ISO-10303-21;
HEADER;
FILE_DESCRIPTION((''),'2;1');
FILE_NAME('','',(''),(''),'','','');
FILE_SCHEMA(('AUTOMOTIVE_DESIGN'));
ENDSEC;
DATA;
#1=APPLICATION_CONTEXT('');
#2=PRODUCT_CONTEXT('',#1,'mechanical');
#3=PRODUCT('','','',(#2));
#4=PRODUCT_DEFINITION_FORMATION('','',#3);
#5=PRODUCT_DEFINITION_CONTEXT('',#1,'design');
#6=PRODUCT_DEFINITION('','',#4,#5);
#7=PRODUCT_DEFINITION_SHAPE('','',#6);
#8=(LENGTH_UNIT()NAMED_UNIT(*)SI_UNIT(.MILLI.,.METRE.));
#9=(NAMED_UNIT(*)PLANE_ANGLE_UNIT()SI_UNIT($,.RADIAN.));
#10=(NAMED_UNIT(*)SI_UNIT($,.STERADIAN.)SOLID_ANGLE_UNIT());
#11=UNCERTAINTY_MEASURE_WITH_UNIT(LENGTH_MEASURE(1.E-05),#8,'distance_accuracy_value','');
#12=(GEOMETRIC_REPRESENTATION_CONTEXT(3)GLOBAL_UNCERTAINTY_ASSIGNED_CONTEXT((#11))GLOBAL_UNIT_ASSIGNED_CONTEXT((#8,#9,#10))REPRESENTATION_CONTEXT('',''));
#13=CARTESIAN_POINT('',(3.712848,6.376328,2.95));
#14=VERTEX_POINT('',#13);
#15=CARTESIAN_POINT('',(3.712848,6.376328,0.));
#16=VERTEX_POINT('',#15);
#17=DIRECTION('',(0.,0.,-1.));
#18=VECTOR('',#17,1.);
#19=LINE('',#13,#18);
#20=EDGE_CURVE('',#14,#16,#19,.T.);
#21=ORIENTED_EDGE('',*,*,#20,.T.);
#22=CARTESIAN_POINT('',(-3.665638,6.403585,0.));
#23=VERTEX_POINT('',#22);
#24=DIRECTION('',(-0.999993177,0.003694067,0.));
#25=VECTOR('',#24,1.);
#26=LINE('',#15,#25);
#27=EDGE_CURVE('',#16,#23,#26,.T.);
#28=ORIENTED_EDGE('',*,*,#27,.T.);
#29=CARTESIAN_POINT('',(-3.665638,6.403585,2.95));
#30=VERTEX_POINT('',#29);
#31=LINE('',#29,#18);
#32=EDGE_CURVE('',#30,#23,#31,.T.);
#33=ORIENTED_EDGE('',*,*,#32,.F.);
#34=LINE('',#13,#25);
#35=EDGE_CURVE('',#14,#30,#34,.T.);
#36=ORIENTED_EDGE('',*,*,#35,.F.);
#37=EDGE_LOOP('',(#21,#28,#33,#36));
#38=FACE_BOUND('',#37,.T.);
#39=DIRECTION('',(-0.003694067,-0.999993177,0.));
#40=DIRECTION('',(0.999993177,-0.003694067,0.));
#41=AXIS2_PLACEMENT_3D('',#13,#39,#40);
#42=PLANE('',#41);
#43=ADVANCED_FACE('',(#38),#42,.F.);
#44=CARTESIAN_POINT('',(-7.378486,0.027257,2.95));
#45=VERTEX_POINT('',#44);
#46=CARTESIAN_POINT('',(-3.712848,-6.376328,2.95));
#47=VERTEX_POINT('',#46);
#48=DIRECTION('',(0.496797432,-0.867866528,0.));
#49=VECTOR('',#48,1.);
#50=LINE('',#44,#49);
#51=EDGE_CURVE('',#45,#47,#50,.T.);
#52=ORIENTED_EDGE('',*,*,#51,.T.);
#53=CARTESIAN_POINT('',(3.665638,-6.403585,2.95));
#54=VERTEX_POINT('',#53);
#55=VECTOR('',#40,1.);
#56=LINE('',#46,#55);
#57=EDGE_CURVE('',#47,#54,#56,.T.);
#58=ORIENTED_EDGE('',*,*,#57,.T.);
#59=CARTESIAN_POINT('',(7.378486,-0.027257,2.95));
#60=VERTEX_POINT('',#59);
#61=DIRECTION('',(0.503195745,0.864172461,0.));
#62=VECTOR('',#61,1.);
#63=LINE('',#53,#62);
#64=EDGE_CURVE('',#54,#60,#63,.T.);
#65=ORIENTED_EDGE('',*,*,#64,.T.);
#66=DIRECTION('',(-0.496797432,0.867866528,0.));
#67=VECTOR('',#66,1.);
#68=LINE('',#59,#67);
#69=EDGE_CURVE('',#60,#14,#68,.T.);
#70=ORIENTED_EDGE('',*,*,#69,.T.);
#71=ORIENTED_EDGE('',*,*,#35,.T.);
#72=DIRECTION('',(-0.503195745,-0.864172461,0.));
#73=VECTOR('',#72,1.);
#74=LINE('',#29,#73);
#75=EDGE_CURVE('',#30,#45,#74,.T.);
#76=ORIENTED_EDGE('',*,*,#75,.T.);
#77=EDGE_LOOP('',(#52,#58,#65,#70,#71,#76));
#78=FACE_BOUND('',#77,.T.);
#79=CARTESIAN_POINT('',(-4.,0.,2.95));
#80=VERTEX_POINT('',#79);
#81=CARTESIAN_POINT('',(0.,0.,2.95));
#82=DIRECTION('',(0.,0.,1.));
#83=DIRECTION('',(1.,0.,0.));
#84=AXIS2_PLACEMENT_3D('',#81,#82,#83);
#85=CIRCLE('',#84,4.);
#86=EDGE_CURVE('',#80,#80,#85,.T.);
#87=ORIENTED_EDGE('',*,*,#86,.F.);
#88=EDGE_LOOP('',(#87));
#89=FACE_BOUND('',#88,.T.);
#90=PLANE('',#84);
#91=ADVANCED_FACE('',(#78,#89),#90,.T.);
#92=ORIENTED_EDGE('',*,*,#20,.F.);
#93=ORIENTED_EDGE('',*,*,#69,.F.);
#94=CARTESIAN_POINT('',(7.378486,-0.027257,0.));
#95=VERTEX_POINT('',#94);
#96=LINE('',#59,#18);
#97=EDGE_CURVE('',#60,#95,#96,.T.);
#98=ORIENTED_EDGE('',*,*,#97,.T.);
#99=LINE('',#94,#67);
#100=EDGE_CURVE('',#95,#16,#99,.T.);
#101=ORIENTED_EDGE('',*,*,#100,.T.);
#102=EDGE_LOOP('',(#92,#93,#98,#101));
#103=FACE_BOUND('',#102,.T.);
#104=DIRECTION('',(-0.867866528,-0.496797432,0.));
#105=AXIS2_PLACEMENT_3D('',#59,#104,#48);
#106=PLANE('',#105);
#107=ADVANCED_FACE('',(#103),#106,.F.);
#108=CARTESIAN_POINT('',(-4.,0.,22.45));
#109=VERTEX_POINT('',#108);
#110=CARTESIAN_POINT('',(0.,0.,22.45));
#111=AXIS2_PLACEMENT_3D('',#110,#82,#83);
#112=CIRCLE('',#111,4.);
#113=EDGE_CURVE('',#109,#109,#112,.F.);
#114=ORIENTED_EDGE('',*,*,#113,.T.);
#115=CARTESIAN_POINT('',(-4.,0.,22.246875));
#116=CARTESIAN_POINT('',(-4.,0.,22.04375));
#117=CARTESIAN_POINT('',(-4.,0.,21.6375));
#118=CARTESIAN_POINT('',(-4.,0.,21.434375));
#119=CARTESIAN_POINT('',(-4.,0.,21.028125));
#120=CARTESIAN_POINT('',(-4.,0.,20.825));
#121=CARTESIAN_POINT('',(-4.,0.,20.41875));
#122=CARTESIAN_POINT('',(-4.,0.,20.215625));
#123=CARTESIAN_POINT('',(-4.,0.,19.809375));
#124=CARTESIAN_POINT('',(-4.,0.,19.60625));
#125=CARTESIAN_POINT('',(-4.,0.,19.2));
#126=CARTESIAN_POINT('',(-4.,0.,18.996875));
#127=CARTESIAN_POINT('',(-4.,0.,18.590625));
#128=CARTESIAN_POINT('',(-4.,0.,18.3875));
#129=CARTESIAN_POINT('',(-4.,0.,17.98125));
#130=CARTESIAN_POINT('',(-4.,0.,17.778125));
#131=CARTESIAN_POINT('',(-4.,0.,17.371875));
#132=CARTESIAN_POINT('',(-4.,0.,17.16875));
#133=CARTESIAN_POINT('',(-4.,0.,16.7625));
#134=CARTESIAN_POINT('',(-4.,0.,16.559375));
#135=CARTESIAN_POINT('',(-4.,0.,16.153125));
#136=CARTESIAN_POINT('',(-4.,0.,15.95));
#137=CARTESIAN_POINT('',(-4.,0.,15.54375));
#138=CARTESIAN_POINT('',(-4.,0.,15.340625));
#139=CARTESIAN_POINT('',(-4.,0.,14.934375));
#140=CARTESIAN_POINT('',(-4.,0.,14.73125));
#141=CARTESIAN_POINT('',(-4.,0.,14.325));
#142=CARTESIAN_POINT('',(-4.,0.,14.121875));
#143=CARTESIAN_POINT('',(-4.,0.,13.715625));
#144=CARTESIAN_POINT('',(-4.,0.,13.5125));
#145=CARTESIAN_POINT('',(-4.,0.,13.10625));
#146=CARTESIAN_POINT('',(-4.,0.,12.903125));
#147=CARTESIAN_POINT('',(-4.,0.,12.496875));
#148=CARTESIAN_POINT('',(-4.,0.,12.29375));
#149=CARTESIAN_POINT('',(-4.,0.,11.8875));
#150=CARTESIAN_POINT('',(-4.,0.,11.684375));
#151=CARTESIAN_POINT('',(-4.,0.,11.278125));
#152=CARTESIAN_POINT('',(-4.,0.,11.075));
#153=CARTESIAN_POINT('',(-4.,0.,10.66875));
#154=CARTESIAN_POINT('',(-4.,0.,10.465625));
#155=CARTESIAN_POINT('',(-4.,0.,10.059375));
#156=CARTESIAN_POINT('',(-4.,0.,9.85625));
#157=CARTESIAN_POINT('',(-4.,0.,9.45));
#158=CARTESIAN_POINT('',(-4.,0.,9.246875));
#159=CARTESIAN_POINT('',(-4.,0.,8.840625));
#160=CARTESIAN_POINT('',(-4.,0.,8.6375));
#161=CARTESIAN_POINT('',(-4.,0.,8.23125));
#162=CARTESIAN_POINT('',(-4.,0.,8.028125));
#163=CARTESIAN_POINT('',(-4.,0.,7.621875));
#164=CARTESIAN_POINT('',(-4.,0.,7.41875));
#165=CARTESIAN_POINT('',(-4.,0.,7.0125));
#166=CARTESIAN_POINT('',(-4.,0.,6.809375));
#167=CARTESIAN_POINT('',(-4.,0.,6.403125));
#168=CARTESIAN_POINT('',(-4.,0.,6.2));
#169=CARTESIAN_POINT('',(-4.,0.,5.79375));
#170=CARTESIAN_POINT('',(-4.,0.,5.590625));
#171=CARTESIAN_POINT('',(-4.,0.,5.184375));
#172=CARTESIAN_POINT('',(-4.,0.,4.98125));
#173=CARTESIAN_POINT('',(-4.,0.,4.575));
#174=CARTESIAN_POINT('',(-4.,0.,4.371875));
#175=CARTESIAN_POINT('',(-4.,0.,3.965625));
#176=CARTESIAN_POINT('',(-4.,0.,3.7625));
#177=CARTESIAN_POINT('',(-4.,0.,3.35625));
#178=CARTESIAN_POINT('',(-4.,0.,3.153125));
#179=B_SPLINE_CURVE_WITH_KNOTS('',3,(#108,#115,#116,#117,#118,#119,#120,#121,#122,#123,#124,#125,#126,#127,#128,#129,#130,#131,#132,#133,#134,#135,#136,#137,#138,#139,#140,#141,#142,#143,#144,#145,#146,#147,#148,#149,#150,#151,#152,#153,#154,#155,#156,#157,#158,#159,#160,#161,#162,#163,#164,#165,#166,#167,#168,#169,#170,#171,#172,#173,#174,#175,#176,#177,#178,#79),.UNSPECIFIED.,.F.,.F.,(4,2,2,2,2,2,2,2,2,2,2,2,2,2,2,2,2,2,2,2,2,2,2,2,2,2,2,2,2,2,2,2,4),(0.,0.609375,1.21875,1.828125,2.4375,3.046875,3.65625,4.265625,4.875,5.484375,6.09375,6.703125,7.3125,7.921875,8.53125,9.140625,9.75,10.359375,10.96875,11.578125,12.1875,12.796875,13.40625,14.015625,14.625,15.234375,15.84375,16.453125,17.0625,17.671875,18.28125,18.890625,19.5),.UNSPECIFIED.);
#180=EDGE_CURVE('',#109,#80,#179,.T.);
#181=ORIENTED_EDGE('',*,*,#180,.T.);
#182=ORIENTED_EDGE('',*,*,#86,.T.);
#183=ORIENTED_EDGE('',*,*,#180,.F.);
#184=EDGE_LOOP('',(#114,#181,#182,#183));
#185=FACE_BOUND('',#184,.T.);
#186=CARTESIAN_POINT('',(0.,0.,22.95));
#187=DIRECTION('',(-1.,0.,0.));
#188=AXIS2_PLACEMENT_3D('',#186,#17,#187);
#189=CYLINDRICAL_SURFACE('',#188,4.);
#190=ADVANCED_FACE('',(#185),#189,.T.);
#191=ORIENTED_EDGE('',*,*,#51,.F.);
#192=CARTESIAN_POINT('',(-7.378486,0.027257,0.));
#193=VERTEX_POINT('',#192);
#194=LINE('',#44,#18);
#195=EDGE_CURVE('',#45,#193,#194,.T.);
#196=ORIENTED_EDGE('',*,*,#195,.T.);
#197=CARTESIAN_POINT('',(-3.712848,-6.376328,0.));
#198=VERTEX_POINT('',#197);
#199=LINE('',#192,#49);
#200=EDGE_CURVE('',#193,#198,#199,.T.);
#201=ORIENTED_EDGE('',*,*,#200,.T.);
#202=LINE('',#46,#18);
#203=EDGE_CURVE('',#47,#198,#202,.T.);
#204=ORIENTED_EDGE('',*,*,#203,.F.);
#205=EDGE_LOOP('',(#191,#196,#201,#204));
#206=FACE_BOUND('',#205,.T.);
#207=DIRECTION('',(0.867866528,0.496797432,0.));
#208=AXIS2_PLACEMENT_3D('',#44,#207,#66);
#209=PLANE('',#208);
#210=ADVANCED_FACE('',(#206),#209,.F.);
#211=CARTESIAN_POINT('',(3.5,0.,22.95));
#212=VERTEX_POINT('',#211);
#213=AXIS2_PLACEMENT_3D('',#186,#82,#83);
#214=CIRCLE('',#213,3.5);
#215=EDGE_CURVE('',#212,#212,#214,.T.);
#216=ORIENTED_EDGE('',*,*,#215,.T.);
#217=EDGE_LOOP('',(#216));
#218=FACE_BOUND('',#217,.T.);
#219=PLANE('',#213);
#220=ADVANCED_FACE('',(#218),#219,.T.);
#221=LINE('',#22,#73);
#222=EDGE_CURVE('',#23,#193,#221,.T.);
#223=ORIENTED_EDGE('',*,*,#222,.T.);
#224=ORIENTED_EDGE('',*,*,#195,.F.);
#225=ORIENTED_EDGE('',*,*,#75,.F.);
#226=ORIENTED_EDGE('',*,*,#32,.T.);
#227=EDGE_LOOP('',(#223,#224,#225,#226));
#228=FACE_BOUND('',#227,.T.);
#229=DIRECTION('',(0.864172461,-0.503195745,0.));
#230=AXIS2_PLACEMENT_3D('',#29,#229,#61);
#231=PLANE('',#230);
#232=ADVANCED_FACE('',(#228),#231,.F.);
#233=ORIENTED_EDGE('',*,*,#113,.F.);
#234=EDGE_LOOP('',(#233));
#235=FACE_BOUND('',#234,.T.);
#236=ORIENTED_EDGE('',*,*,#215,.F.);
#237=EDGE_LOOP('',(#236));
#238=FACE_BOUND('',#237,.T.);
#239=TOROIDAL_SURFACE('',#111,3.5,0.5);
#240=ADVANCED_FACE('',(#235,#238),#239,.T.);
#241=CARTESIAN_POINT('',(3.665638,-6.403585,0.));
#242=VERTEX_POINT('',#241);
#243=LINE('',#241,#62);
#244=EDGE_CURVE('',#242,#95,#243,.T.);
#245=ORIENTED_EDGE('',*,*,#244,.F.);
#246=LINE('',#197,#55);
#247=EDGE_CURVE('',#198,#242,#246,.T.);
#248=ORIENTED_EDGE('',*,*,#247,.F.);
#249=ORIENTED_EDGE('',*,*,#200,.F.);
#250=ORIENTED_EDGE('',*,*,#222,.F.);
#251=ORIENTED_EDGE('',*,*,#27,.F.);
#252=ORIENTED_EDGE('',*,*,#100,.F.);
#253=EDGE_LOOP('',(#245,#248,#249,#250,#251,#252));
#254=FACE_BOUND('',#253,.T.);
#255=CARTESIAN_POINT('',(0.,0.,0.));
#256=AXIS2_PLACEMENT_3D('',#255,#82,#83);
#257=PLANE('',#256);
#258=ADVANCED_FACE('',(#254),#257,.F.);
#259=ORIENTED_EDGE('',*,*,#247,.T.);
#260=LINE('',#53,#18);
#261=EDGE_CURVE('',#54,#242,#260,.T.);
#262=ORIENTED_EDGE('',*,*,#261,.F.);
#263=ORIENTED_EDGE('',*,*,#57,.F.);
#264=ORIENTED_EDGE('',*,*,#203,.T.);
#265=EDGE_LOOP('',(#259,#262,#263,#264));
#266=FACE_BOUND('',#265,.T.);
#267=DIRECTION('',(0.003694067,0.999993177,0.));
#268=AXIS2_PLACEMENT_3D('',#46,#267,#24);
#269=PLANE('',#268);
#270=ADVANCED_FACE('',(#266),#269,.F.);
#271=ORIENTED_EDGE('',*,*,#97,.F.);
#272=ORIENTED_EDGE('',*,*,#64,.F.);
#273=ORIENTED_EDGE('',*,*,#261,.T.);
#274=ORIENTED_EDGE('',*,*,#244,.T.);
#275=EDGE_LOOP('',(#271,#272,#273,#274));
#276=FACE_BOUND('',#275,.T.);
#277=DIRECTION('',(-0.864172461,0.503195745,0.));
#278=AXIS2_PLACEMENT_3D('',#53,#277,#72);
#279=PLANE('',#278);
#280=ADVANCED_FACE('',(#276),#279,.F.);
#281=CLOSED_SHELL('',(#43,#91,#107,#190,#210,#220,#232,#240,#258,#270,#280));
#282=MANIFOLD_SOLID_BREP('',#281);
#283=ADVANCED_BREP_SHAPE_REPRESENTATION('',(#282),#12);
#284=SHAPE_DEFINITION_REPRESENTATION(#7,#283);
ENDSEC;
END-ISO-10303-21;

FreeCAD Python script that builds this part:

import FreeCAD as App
import Part
import Sketcher


def edges_at(feature, points):
    """Names of the edges that pass closest to the given points."""
    edges = feature.Shape.Edges
    near = lambda p: min(range(len(edges)), key=lambda i: edges[i].distToShape(Part.Vertex(*p))[0])
    return sorted({f"Edge{near(p) + 1}" for p in points})

doc = App.newDocument("Part")
body = doc.addObject("PartDesign::Body", "Body")

sketch1 = doc.addObject("Sketcher::SketchObject", "Sketch")
body.addObject(sketch1)
sketch1.AttachmentSupport = (doc.XY_Plane, [""])
sketch1.MapMode = "FlatFace"
sketch1.addGeometry([
    Part.LineSegment(App.Vector(4, 6, 0), App.Vector(-4, 6, 0)),
    Part.LineSegment(App.Vector(-4, 6, 0), App.Vector(-7, 0, 0)),
    Part.LineSegment(App.Vector(-7, 0, 0), App.Vector(-4, -6, 0)),
    Part.LineSegment(App.Vector(-4, -6, 0), App.Vector(4, -6, 0)),
    Part.LineSegment(App.Vector(4, -6, 0), App.Vector(7, 0, 0)),
    Part.LineSegment(App.Vector(7, 0, 0), App.Vector(4, 6, 0)),
], False)
sketch1.addConstraint([
    Sketcher.Constraint("Coincident", 0, 2, 1, 1),
    Sketcher.Constraint("Coincident", 1, 2, 2, 1),
    Sketcher.Constraint("Coincident", 2, 2, 3, 1),
    Sketcher.Constraint("Coincident", 3, 2, 4, 1),
    Sketcher.Constraint("Coincident", 4, 2, 5, 1),
    Sketcher.Constraint("Coincident", 5, 2, 0, 1),
    Sketcher.Constraint("Symmetric", 0, 2, 3, 2, -1, 1),
    Sketcher.Constraint("Symmetric", 1, 2, 4, 2, -1, 1),
    Sketcher.Constraint("Symmetric", 2, 2, 5, 2, -1, 1),
    Sketcher.Constraint("Equal", 0, 1),
    Sketcher.Constraint("Equal", 1, 2),
    Sketcher.Constraint("DistanceX", 2, 2, -1, 1, 3.712848),
    Sketcher.Constraint("DistanceX", 1, 2, 0, 2, 3.712848),
    Sketcher.Constraint("DistanceX", 2, 2, 0, 2, 0.04721),
    Sketcher.Constraint("DistanceY", 3, 2, 1, 2, 6.430842),
])
pad1 = doc.addObject("PartDesign::Pad", "Pad")
body.addObject(pad1)
pad1.Profile = sketch1
pad1.Length = 2.95

sketch2 = doc.addObject("Sketcher::SketchObject", "Sketch001")
body.addObject(sketch2)
sketch2.AttachmentSupport = (doc.XY_Plane, [""])
sketch2.MapMode = "FlatFace"
sketch2.AttachmentOffset = App.Placement(App.Vector(0, 0, 2.95), App.Rotation())
sketch2.addGeometry(Part.Circle(App.Vector(0, 0, 0), App.Vector(0, 0, 1), 4), False)
sketch2.addConstraint([
    Sketcher.Constraint("Coincident", 0, 3, -1, 1),
    Sketcher.Constraint("Diameter", 0, 8.0),
])
pad2 = doc.addObject("PartDesign::Pad", "Pad001")
body.addObject(pad2)
pad2.Profile = sketch2
pad2.Length = 20
doc.recompute()

fillet = doc.addObject("PartDesign::Fillet", "Fillet")
body.addObject(fillet)
fillet.Base = (pad2, edges_at(pad2, [(-4, 0, 22.95)]))
fillet.Radius = 0.5

doc.recompute()
